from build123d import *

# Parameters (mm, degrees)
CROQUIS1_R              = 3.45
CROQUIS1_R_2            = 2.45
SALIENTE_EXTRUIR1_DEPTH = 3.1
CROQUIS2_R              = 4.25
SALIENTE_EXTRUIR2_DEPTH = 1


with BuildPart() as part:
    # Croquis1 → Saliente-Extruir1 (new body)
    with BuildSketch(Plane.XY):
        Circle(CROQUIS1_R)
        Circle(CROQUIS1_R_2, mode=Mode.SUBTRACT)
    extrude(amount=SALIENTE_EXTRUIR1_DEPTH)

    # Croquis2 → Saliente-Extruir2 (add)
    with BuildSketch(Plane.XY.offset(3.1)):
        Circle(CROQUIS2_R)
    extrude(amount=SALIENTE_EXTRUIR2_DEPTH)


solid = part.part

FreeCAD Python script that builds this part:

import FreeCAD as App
import Part
import Sketcher

doc = App.newDocument("Part")
body = doc.addObject("PartDesign::Body", "Body")

# Sketch on XY plane
sketch1 = doc.addObject("Sketcher::SketchObject", "Sketch")
body.addObject(sketch1)
sketch1.AttachmentSupport = (doc.XY_Plane, [""])
sketch1.MapMode = "FlatFace"
sketch1.addGeometry(Part.Circle(App.Vector(0, 0, 0), App.Vector(0, 0, 1), 3.5), False)
sketch1.addGeometry(Part.Circle(App.Vector(0, 0, 0), App.Vector(0, 0, 1), 2.5), False)
sketch1.addConstraint(Sketcher.Constraint("Coincident", 0, 3, -1, 1))
sketch1.addConstraint(Sketcher.Constraint("Coincident", 1, 3, -1, 1))
sketch1.addConstraint(Sketcher.Constraint("Diameter", 0, 6.9))
sketch1.addConstraint(Sketcher.Constraint("Diameter", 1, 4.9))
pad1 = doc.addObject("PartDesign::Pad", "Pad")
body.addObject(pad1)
pad1.Profile = sketch1
pad1.Length = 3.1

# Sketch on XY plane
sketch2 = doc.addObject("Sketcher::SketchObject", "Sketch001")
body.addObject(sketch2)
sketch2.AttachmentSupport = (doc.XY_Plane, [""])
sketch2.MapMode = "FlatFace"
sketch2.AttachmentOffset = App.Placement(App.Vector(0, 0, 3.1), App.Rotation())
sketch2.addGeometry(Part.Circle(App.Vector(0, 0, 0), App.Vector(0, 0, 1), 4.2), False)
sketch2.addConstraint(Sketcher.Constraint("Coincident", 0, 3, -1, 1))
sketch2.addConstraint(Sketcher.Constraint("Diameter", 0, 8.5))
pad2 = doc.addObject("PartDesign::Pad", "Pad001")
body.addObject(pad2)
pad2.Profile = sketch2
pad2.Length = 1

doc.recompute()
